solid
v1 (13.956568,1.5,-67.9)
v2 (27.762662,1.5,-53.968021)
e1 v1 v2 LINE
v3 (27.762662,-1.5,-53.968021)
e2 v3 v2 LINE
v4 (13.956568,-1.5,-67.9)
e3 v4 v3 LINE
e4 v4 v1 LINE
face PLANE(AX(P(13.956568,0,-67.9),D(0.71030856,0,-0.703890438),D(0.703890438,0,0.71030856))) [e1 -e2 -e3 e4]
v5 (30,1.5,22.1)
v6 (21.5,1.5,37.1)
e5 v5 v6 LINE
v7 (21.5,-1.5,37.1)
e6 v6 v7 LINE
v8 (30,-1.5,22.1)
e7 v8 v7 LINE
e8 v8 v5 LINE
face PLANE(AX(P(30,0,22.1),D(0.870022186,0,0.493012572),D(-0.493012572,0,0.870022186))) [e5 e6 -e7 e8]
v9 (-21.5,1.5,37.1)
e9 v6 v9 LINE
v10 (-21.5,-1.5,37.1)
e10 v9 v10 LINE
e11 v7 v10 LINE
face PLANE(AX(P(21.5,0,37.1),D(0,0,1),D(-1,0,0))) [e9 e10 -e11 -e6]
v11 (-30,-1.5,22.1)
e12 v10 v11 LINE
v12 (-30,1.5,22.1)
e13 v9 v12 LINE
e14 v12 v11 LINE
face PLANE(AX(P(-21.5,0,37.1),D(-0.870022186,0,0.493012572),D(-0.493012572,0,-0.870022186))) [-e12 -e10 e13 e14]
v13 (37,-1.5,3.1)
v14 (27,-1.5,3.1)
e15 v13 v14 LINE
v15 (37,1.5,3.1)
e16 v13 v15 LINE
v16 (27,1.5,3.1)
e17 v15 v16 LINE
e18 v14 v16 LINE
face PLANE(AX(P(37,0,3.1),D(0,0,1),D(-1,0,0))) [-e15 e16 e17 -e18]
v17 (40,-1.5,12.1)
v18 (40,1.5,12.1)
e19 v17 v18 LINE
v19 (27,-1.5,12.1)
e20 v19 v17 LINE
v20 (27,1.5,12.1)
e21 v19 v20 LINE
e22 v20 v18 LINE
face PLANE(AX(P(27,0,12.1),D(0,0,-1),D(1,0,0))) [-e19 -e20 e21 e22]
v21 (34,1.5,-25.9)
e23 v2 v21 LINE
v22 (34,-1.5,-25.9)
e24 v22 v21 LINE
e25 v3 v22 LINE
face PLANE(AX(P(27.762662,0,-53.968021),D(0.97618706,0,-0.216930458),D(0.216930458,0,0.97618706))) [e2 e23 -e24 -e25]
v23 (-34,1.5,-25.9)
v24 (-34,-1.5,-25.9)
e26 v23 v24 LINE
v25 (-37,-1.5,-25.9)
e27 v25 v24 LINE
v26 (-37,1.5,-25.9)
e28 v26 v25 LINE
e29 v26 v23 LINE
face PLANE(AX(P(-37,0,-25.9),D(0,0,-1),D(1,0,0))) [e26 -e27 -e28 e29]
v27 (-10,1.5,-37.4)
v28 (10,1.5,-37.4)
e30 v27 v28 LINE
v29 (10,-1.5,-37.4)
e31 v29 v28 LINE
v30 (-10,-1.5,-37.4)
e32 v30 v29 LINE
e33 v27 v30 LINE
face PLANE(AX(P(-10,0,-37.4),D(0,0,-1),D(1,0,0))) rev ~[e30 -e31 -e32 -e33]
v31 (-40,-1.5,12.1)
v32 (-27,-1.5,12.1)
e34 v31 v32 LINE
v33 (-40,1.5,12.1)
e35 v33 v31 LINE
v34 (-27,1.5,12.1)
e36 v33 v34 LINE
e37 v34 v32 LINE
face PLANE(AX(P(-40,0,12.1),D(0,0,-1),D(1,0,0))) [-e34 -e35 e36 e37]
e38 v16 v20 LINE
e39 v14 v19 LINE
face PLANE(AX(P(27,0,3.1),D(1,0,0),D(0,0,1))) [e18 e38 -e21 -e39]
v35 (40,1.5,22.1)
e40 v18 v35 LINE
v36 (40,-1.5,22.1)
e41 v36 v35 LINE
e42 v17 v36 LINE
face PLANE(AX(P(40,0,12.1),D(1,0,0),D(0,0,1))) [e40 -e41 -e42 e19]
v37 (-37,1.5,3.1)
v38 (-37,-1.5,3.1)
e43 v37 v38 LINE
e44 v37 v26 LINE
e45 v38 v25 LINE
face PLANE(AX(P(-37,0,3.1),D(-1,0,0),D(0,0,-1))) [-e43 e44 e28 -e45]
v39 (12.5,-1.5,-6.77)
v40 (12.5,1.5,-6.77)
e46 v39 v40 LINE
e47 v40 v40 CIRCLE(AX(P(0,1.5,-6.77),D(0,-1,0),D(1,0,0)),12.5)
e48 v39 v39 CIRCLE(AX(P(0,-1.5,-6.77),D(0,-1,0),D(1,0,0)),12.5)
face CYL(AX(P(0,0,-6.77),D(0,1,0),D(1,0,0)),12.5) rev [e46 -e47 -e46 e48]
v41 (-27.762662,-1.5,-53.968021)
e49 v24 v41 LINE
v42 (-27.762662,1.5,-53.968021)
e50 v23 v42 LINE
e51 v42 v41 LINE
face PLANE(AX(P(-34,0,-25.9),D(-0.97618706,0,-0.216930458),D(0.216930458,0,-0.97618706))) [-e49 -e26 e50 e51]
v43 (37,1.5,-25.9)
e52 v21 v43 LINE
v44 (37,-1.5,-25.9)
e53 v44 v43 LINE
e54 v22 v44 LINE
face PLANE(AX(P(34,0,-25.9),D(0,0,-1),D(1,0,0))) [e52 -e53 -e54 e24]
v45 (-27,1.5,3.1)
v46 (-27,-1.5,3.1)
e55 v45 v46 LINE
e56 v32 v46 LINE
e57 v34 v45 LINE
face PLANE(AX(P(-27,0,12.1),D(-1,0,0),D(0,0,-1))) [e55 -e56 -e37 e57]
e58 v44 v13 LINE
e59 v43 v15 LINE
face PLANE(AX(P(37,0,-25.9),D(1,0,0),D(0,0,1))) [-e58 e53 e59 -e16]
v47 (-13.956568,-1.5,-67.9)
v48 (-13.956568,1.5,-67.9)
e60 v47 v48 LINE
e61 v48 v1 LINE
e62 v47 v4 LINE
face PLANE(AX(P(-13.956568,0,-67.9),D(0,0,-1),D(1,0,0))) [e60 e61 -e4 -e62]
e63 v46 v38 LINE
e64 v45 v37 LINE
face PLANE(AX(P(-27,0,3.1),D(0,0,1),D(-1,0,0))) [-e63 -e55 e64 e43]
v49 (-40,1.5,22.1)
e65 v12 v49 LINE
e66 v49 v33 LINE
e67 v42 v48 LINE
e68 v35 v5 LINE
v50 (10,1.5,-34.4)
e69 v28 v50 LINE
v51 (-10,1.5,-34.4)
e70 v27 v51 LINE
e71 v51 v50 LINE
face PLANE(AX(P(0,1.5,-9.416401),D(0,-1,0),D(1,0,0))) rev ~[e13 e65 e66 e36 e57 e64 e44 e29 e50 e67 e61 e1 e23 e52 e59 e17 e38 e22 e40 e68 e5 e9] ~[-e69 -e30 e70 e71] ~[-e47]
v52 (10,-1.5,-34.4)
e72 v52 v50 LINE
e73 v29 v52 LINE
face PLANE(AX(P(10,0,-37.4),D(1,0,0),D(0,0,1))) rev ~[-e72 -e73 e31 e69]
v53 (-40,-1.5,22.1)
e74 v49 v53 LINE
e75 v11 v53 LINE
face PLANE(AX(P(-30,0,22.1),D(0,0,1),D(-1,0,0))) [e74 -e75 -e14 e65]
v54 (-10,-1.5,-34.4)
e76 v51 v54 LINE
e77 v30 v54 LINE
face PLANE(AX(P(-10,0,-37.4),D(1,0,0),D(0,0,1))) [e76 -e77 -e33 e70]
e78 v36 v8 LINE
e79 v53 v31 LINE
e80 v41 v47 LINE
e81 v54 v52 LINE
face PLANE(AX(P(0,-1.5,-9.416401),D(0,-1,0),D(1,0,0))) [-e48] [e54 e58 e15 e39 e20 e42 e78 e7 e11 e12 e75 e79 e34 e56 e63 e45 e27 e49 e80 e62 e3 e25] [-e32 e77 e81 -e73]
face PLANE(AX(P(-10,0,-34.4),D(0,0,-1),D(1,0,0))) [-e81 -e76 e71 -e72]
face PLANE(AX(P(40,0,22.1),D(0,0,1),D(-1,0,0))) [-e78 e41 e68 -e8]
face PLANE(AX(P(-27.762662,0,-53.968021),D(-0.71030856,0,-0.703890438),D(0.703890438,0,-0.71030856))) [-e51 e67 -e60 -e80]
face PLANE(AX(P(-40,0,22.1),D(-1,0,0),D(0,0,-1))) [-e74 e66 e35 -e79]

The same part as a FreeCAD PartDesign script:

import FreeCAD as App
import Part
import Sketcher
from FreeCAD import Vector
Q = App.Units.Quantity

doc = App.newDocument("Part")
body = doc.addObject("PartDesign::Body", "Body")

sketch1 = body.newObject("Sketcher::SketchObject", "Sketch")
sketch1.AttachmentSupport = (doc.getObject("XZ_Plane"), [""])
sketch1.MapMode = "FlatFace"
sketch1.addGeometry([
    Part.LineSegment(Vector(30, 22.1, 0), Vector(21.5, 37.1, 0)),
    Part.LineSegment(Vector(21.5, 37.1, 0), Vector(-21.5, 37.1, 0)),
    Part.LineSegment(Vector(-21.5, 37.1, 0), Vector(-30, 22.1, 0)),
    Part.LineSegment(Vector(-30, 22.1, 0), Vector(-40, 22.1, 0)),
    Part.LineSegment(Vector(-40, 22.1, 0), Vector(-40, 12.1, 0)),
    Part.LineSegment(Vector(-40, 12.1, 0), Vector(-27, 12.1, 0)),
    Part.LineSegment(Vector(-27, 12.1, 0), Vector(-27, 3.1, 0)),
    Part.LineSegment(Vector(-27, 3.1, 0), Vector(-37, 3.1, 0)),
    Part.LineSegment(Vector(-37, 3.1, 0), Vector(-37, -25.9, 0)),
    Part.LineSegment(Vector(-37, -25.9, 0), Vector(-34, -25.9, 0)),
    Part.LineSegment(Vector(-34, -25.9, 0), Vector(-27.8, -54, 0)),
    Part.LineSegment(Vector(-27.8, -54, 0), Vector(-14, -67.9, 0)),
    Part.LineSegment(Vector(-14, -67.9, 0), Vector(14, -67.9, 0)),
    Part.LineSegment(Vector(14, -67.9, 0), Vector(27.8, -54, 0)),
    Part.LineSegment(Vector(27.8, -54, 0), Vector(34, -25.9, 0)),
    Part.LineSegment(Vector(34, -25.9, 0), Vector(37, -25.9, 0)),
    Part.LineSegment(Vector(37, -25.9, 0), Vector(37, 3.1, 0)),
    Part.LineSegment(Vector(37, 3.1, 0), Vector(27, 3.1, 0)),
    Part.LineSegment(Vector(27, 3.1, 0), Vector(27, 12.1, 0)),
    Part.LineSegment(Vector(27, 12.1, 0), Vector(40, 12.1, 0)),
    Part.LineSegment(Vector(40, 12.1, 0), Vector(40, 22.1, 0)),
    Part.LineSegment(Vector(40, 22.1, 0), Vector(30, 22.1, 0)),
    Part.LineSegment(Vector(10, -37.4, 0), Vector(-10, -37.4, 0)),
    Part.LineSegment(Vector(-10, -37.4, 0), Vector(-10, -34.4, 0)),
    Part.LineSegment(Vector(-10, -34.4, 0), Vector(10, -34.4, 0)),
    Part.LineSegment(Vector(10, -34.4, 0), Vector(10, -37.4, 0)),
    Part.Circle(Vector(0, -6.8, 0), Vector(0, 0, 1), 12.5),
], False)
sketch1.addConstraint([
    Sketcher.Constraint("Coincident", 0, 2, 1, 1),
    Sketcher.Constraint("Coincident", 1, 2, 2, 1),
    Sketcher.Constraint("Coincident", 2, 2, 3, 1),
    Sketcher.Constraint("Coincident", 3, 2, 4, 1),
    Sketcher.Constraint("Coincident", 4, 2, 5, 1),
    Sketcher.Constraint("Coincident", 5, 2, 6, 1),
    Sketcher.Constraint("Coincident", 6, 2, 7, 1),
    Sketcher.Constraint("Coincident", 7, 2, 8, 1),
    Sketcher.Constraint("Coincident", 8, 2, 9, 1),
    Sketcher.Constraint("Coincident", 9, 2, 10, 1),
    Sketcher.Constraint("Coincident", 10, 2, 11, 1),
    Sketcher.Constraint("Coincident", 11, 2, 12, 1),
    Sketcher.Constraint("Coincident", 12, 2, 13, 1),
    Sketcher.Constraint("Coincident", 13, 2, 14, 1),
    Sketcher.Constraint("Coincident", 14, 2, 15, 1),
    Sketcher.Constraint("Coincident", 15, 2, 16, 1),
    Sketcher.Constraint("Coincident", 16, 2, 17, 1),
    Sketcher.Constraint("Coincident", 17, 2, 18, 1),
    Sketcher.Constraint("Coincident", 18, 2, 19, 1),
    Sketcher.Constraint("Coincident", 19, 2, 20, 1),
    Sketcher.Constraint("Coincident", 20, 2, 21, 1),
    Sketcher.Constraint("Coincident", 21, 2, 0, 1),
    Sketcher.Constraint("Coincident", 22, 2, 23, 1),
    Sketcher.Constraint("Coincident", 23, 2, 24, 1),
    Sketcher.Constraint("Coincident", 24, 2, 25, 1),
    Sketcher.Constraint("Coincident", 25, 2, 22, 1),
    Sketcher.Constraint("Horizontal", 1),
    Sketcher.Constraint("Horizontal", 3),
    Sketcher.Constraint("Vertical", 4),
    Sketcher.Constraint("Horizontal", 5),
    Sketcher.Constraint("Vertical", 6),
    Sketcher.Constraint("Horizontal", 7),
    Sketcher.Constraint("Vertical", 8),
    Sketcher.Constraint("Horizontal", 9),
    Sketcher.Constraint("Horizontal", 12),
    Sketcher.Constraint("Horizontal", 15),
    Sketcher.Constraint("Vertical", 16),
    Sketcher.Constraint("Horizontal", 17),
    Sketcher.Constraint("Vertical", 18),
    Sketcher.Constraint("Horizontal", 19),
    Sketcher.Constraint("Vertical", 20),
    Sketcher.Constraint("Horizontal", 21),
    Sketcher.Constraint("Horizontal", 22),
    Sketcher.Constraint("Vertical", 23),
    Sketcher.Constraint("Horizontal", 24),
    Sketcher.Constraint("Vertical", 25),
    Sketcher.Constraint("Symmetric", 10, 2, 13, 2, -2),
    Sketcher.Constraint("Symmetric", 9, 2, 14, 2, -2),
    Sketcher.Constraint("Symmetric", 7, 2, 16, 2, -2),
    Sketcher.Constraint("Symmetric", 5, 2, 18, 2, -2),
    Sketcher.Constraint("Symmetric", 3, 2, 20, 2, -2),
    Sketcher.Constraint("PointOnObject", 26, 3, -2),
    Sketcher.Constraint("Equal", 3, 7),
    Sketcher.Constraint("Equal", 17, 21),
    Sketcher.Constraint("Equal", 21, 4),
    Sketcher.Constraint("Equal", 15, 23),
    Sketcher.Constraint("Equal", 0, 2),
    Sketcher.Constraint("Equal", 11, 13),
    Sketcher.Constraint("Diameter", 26, Q("25 mm")),
    Sketcher.Constraint("DistanceX", 1, 2, 1, 1, Q("43 mm")),
    Sketcher.Constraint("DistanceX", 3, 2, 3, 1, Q("10 mm")),
    Sketcher.Constraint("DistanceX", 5, 1, 5, 2, Q("13 mm")),
    Sketcher.Constraint("DistanceX", 9, 1, 9, 2, Q("3 mm")),
    Sketcher.Constraint("DistanceX", 22, 2, 22, 1, Q("20 mm")),
    Sketcher.Constraint("DistanceY", 6, 2, 6, 1, Q("9 mm")),
    Sketcher.Constraint("DistanceY", 8, 2, 8, 1, Q("29 mm")),
    Sketcher.Constraint("DistanceX", 2, 2, -1, 1, Q("30 mm")),
    Sketcher.Constraint("DistanceX", 22, 2, -1, 1, Q("10 mm")),
    Sketcher.Constraint("DistanceY", 2, 2, 1, 2, Q("15 mm")),
    Sketcher.Constraint("DistanceY", 11, 2, 9, 2, Q("42 mm")),
    Sketcher.Constraint("DistanceY", -1, 1, 0, 2, Q("37.1 mm")),
    Sketcher.Constraint("DistanceY", 22, 2, -1, 1, Q("37.4 mm")),
    Sketcher.Constraint("DistanceY", 26, 3, -1, 1, Q("6.77 mm")),
    Sketcher.Constraint("Distance", 11, Q("19.613982 mm")),
    Sketcher.Constraint("DistanceX", 12, 1, 12, 2, Q("27.913136 mm")),
    Sketcher.Constraint("DistanceY", 10, 2, -1, 1, Q("53.968021 mm")),
])
pad1 = body.newObject("PartDesign::Pad", "Pad")
pad1.Profile = sketch1
pad1.Length = 3
pad1.Midplane = True

doc.recompute()
